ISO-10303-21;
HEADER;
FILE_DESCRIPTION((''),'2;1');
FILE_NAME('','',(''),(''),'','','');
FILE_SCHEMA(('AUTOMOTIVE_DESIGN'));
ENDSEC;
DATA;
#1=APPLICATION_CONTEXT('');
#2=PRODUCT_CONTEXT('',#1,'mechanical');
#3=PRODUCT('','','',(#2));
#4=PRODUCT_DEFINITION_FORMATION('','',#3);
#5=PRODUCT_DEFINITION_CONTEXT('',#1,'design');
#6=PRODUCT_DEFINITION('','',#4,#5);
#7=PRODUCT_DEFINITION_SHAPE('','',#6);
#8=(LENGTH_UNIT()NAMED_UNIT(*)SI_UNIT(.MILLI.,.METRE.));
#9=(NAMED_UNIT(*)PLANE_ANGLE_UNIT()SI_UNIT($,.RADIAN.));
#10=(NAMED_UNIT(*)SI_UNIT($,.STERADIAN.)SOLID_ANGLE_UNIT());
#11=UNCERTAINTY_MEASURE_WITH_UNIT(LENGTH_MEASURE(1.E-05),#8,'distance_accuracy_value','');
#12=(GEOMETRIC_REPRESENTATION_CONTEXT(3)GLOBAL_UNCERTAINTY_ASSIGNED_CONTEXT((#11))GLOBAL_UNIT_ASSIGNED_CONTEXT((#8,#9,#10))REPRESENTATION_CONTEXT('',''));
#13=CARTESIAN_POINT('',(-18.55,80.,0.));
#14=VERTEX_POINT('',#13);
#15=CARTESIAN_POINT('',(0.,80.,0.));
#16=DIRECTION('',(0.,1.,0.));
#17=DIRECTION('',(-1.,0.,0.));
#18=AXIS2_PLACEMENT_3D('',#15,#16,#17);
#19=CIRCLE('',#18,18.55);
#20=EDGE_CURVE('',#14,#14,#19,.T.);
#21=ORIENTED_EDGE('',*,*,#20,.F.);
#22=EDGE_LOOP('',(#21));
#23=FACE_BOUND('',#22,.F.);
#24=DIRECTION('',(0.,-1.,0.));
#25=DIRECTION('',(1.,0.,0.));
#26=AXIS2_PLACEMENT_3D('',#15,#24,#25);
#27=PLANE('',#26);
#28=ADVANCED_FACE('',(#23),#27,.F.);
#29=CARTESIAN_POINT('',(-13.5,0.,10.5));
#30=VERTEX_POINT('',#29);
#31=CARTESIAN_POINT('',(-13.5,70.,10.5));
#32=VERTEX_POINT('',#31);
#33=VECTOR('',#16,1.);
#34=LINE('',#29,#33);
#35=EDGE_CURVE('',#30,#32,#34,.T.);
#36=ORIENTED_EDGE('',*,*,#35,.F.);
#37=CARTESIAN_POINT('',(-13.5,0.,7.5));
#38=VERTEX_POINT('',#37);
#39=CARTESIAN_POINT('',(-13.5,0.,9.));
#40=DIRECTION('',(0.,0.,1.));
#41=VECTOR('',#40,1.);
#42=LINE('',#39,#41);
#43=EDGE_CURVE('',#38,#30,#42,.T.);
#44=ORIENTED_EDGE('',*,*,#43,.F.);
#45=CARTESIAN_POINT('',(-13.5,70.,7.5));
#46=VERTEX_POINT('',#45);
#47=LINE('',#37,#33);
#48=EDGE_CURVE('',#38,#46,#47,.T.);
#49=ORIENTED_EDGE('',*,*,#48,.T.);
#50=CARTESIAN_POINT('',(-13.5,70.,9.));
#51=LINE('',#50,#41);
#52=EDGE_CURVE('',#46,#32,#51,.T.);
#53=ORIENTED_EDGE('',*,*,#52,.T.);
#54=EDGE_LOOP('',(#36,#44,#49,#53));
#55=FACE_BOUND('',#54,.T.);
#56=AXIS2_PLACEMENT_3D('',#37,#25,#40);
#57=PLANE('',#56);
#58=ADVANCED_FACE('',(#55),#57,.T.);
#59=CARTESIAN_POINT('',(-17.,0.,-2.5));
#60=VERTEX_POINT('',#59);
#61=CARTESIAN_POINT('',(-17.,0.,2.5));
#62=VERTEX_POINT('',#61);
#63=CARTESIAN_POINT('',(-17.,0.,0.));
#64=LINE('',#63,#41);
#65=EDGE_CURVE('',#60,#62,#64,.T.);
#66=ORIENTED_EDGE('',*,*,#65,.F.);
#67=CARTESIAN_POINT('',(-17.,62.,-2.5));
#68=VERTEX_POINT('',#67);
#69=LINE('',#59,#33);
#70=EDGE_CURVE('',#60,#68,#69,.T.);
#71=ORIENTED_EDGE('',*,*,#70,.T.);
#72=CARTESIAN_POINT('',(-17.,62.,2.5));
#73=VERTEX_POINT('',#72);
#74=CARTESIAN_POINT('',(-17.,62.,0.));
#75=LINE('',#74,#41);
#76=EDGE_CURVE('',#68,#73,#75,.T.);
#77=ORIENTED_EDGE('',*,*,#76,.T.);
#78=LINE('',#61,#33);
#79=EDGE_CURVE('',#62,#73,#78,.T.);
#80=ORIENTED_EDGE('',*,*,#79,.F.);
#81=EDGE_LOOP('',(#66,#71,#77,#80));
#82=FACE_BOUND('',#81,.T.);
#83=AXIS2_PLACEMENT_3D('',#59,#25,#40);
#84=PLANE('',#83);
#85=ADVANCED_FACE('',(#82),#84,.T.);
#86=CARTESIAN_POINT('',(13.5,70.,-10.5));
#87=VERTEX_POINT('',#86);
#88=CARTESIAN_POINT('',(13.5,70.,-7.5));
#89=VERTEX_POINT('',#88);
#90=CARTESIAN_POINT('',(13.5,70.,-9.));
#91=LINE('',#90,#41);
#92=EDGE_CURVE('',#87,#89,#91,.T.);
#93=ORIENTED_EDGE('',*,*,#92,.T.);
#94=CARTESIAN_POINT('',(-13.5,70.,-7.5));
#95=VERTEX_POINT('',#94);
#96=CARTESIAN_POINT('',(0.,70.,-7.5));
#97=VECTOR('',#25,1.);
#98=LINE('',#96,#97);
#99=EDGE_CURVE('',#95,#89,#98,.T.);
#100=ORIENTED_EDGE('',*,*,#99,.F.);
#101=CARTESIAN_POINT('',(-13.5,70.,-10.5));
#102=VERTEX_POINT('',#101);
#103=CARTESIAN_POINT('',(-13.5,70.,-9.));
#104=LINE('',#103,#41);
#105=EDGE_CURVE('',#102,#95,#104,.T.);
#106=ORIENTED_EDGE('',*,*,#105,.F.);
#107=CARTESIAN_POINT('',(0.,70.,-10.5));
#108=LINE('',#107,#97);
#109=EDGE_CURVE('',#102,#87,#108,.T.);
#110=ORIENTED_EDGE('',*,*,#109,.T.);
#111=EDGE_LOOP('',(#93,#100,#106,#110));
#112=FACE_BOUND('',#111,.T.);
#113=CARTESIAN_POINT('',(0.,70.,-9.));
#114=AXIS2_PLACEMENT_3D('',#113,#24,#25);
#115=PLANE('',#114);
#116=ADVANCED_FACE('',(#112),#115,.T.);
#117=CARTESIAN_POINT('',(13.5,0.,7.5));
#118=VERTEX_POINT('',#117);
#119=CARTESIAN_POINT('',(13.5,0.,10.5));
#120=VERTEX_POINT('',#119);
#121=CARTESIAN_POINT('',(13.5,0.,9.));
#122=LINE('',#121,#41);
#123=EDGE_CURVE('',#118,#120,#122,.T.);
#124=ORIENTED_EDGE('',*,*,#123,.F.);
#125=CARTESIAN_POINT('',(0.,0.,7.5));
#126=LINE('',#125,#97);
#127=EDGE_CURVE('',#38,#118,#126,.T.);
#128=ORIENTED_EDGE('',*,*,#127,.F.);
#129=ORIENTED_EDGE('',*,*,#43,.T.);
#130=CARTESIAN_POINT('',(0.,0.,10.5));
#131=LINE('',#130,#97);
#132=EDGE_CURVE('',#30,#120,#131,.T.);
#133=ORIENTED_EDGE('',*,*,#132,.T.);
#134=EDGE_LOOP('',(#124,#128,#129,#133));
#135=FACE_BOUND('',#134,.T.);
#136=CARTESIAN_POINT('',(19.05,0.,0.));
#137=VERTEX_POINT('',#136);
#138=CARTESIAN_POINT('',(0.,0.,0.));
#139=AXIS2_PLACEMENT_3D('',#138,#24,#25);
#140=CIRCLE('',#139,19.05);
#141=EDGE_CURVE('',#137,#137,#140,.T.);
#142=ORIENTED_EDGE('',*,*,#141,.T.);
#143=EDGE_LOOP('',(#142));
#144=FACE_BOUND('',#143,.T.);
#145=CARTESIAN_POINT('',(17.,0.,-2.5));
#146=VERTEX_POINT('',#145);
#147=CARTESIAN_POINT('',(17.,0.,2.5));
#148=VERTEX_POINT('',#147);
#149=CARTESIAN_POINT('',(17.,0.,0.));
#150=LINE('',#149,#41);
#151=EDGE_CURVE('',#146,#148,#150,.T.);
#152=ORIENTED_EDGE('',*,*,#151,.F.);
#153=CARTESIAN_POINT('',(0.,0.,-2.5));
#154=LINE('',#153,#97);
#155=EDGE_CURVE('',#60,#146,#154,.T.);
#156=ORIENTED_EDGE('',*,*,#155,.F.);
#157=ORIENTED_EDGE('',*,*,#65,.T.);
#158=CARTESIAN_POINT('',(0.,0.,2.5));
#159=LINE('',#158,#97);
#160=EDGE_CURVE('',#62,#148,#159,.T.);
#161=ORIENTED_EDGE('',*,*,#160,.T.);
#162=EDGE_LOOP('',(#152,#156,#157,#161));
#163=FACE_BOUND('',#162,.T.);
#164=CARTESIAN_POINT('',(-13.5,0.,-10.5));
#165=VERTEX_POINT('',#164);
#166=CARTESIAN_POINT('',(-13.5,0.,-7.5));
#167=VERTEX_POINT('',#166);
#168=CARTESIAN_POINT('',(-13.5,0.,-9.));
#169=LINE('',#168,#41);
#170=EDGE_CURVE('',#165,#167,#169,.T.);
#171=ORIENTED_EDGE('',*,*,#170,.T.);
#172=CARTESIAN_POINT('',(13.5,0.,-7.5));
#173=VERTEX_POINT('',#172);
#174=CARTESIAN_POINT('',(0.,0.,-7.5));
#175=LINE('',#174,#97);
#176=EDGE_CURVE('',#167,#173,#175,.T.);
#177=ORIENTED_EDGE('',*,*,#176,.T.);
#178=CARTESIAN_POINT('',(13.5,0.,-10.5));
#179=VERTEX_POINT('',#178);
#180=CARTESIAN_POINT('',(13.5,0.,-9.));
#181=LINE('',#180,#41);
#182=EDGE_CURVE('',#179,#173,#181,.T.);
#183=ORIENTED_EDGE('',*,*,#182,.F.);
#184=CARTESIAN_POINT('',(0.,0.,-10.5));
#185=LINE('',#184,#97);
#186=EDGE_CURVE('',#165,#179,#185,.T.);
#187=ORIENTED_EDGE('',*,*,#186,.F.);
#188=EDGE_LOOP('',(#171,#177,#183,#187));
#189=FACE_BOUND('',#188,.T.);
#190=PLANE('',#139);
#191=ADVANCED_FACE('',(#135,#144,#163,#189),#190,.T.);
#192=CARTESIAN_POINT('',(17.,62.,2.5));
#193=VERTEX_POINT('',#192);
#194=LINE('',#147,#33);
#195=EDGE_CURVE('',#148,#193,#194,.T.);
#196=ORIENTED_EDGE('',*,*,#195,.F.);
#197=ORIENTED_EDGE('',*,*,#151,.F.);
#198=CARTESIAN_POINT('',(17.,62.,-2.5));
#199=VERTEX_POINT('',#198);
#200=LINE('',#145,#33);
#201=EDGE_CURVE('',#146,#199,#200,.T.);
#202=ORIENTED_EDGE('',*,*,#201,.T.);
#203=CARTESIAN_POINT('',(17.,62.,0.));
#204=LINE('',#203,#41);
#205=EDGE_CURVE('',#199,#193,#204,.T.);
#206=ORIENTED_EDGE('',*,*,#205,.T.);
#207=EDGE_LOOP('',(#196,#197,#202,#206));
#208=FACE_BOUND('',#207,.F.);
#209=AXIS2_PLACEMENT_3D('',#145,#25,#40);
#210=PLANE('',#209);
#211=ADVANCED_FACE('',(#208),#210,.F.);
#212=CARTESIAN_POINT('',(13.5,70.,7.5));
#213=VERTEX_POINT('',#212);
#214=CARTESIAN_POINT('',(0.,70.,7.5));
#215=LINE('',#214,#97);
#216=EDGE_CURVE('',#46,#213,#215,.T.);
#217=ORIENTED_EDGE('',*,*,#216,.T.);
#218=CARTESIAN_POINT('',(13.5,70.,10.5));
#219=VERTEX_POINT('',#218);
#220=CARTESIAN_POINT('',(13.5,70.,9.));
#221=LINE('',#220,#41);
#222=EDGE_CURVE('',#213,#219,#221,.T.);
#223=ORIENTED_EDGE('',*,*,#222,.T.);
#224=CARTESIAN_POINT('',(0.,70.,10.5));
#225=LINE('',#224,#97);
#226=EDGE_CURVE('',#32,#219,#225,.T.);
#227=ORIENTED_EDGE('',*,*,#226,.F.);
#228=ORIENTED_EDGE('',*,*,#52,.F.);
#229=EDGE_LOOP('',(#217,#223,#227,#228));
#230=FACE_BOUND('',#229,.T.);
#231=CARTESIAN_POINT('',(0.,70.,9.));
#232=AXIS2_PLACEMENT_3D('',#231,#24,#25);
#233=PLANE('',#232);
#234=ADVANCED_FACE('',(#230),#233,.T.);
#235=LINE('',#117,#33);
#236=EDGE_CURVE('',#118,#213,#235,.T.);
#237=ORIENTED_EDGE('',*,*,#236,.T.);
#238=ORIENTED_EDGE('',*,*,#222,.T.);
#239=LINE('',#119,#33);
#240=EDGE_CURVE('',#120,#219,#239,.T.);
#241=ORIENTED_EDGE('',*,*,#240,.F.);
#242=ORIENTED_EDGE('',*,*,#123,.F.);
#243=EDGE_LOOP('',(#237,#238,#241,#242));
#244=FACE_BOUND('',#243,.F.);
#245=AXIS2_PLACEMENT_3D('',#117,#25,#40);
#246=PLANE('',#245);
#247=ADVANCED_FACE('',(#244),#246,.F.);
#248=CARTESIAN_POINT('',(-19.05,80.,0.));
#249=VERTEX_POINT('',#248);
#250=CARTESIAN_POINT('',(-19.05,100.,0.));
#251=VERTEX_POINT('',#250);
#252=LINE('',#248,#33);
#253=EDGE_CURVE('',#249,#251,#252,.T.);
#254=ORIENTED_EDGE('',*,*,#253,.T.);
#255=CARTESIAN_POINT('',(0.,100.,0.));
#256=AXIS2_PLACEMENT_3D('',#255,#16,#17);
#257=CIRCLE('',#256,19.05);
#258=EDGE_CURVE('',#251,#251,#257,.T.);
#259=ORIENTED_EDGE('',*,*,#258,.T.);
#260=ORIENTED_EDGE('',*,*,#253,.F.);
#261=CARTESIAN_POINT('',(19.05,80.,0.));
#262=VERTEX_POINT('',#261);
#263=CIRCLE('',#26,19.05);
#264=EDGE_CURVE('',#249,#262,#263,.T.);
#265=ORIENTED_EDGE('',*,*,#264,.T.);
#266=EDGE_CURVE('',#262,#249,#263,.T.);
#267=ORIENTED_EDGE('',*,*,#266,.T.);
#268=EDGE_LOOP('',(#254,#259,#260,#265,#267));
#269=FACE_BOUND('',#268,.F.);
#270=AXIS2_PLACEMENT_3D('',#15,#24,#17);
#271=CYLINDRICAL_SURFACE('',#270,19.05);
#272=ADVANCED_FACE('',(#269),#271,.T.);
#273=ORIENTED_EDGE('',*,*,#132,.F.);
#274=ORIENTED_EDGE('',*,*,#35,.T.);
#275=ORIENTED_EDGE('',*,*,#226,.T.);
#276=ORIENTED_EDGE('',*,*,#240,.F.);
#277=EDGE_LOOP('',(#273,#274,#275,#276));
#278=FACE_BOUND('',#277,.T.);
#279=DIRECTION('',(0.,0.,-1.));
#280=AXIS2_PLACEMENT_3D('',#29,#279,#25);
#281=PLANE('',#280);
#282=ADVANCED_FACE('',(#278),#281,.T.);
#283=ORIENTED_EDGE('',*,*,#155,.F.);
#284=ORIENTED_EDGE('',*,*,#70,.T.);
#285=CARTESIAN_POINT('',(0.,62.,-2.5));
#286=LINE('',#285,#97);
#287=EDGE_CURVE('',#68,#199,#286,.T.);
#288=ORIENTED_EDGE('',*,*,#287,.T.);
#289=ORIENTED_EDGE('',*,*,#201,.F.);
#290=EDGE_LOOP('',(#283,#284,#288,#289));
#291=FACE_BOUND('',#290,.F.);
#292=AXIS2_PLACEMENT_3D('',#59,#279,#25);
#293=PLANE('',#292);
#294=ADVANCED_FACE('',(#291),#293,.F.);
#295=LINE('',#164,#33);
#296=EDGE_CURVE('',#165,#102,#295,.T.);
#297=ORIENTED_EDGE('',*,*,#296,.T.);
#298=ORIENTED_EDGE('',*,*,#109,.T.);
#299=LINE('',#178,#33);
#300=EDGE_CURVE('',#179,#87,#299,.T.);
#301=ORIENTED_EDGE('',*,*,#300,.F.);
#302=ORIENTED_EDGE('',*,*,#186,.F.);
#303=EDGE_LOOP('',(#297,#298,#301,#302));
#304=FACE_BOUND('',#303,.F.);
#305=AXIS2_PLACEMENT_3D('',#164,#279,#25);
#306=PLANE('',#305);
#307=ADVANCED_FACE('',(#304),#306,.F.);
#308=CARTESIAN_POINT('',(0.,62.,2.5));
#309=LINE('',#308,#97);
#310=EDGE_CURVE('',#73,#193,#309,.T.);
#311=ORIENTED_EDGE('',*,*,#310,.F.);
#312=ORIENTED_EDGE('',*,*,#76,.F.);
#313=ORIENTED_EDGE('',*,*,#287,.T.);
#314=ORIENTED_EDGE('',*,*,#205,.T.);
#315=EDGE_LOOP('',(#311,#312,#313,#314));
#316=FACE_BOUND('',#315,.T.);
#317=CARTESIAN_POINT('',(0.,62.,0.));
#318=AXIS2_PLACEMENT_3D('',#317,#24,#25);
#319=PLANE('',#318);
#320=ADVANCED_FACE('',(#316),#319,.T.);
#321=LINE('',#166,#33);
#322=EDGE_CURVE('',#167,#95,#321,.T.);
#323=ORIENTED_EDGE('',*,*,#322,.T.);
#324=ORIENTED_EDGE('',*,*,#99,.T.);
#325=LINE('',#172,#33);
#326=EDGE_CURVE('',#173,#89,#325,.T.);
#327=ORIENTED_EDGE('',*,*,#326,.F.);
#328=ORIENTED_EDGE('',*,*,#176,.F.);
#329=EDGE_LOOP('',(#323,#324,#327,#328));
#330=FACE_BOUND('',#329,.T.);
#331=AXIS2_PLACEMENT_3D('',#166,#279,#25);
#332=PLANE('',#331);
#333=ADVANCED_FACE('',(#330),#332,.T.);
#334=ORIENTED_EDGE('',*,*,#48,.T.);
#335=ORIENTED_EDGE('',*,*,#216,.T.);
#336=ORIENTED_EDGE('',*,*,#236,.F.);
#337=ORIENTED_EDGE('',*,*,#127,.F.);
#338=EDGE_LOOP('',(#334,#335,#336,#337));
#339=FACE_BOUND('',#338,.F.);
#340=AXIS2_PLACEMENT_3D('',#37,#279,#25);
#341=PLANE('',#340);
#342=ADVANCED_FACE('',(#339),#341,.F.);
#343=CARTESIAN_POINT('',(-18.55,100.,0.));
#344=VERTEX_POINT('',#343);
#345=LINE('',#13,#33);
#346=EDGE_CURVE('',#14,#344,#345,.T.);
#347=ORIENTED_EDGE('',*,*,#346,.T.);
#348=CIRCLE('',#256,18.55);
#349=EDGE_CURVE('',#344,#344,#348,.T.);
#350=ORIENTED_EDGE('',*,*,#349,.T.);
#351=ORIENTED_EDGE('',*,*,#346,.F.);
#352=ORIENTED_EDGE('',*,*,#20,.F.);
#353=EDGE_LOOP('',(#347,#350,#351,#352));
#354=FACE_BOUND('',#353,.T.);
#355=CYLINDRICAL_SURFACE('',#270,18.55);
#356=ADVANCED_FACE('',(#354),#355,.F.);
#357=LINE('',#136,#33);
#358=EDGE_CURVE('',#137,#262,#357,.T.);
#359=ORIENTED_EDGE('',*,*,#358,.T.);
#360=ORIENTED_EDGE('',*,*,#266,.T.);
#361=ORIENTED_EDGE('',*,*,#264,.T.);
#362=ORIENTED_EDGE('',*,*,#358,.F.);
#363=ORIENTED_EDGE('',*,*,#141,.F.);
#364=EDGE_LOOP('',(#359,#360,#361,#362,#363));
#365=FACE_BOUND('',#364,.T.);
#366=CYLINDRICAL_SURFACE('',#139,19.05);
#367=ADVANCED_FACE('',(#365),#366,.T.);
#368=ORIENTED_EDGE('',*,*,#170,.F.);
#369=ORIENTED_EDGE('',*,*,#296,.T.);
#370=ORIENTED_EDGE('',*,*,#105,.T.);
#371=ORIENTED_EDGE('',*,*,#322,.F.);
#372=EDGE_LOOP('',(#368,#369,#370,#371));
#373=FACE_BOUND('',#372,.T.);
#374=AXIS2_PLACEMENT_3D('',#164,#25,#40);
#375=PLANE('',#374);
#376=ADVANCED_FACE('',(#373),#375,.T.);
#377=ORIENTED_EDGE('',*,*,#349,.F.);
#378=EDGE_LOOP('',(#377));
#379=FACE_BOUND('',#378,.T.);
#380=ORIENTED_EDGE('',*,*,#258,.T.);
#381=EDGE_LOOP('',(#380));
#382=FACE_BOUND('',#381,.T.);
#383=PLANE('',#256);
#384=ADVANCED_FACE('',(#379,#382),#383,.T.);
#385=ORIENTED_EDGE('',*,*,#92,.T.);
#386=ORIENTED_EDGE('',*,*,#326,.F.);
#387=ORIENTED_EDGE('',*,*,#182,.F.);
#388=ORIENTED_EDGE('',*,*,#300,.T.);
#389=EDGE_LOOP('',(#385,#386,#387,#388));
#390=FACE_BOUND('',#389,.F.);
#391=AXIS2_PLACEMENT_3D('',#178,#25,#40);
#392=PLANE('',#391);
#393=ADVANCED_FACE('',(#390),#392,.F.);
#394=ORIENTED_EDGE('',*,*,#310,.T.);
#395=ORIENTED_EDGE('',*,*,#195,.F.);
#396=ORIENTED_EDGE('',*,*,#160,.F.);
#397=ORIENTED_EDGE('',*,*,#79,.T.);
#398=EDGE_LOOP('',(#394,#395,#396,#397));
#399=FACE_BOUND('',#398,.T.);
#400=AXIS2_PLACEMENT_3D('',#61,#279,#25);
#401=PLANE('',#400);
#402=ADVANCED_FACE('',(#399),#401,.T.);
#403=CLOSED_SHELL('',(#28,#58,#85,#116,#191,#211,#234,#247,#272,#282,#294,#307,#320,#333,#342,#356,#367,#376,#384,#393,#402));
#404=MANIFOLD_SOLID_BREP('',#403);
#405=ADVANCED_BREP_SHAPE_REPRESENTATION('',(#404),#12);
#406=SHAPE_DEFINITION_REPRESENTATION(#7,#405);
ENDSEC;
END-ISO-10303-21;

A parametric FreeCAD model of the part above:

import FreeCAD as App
import Part
import Sketcher
from FreeCAD import Vector


def add_polygon(sketch, points):
    """Adds a closed chain of lines whose ends are joined by coincident constraints."""
    first, n = sketch.GeometryCount, len(points)
    for a, b in zip(points, points[1:] + points[:1]):
        sketch.addGeometry(Part.LineSegment(App.Vector(*a, 0), App.Vector(*b, 0)), False)
    for i in range(n):
        sketch.addConstraint(Sketcher.Constraint("Coincident", first + i, 2, first + (i + 1) % n, 1))

doc = App.newDocument("Part")
body = doc.addObject("PartDesign::Body", "Body")

# Sketch on XZ plane
sketch1 = doc.addObject("Sketcher::SketchObject", "Sketch")
body.addObject(sketch1)
sketch1.AttachmentSupport = (doc.XZ_Plane, [""])
sketch1.MapMode = "FlatFace"
sketch1.addGeometry(Part.Circle(Vector(0, 0, 0), Vector(0, 0, 1), 19), False)
sketch1.addConstraint([
    Sketcher.Constraint("Coincident", 0, 3, -1, 1),
    Sketcher.Constraint("Diameter", 0, 38.1),
])
pad1 = doc.addObject("PartDesign::Pad", "Pad")
body.addObject(pad1)
pad1.Profile = sketch1
pad1.Length = 80
pad1.Reversed = True

# Sketch on XZ plane
sketch2 = doc.addObject("Sketcher::SketchObject", "Sketch001")
body.addObject(sketch2)
sketch2.AttachmentSupport = (doc.XZ_Plane, [""])
sketch2.MapMode = "FlatFace"
sketch2.AttachmentOffset = App.Placement(Vector(0, 0, -80), App.Rotation())
sketch2.addGeometry([
    Part.Circle(Vector(0, 0, 0), Vector(0, 0, 1), 19),
    Part.Circle(Vector(0, 0, 0), Vector(0, 0, 1), 19),
], False)
sketch2.addConstraint([
    Sketcher.Constraint("Coincident", 0, 3, -1, 1),
    Sketcher.Constraint("Coincident", 1, 3, -1, 1),
    Sketcher.Constraint("Diameter", 0, 38.1),
    Sketcher.Constraint("Diameter", 1, 37.1),
])
pad2 = doc.addObject("PartDesign::Pad", "Pad001")
body.addObject(pad2)
pad2.Profile = sketch2
pad2.Length = 20
pad2.Reversed = True

# Sketch on XZ plane
sketch3 = doc.addObject("Sketcher::SketchObject", "Sketch002")
body.addObject(sketch3)
sketch3.AttachmentSupport = (doc.XZ_Plane, [""])
sketch3.MapMode = "FlatFace"
add_polygon(sketch3, [(-13.5, 10.5), (-13.5, 7.5), (13.5, 7.5), (13.5, 10.5)])  # lines 0-3
add_polygon(sketch3, [(-13.5, -7.5), (-13.5, -10.5), (13.5, -10.5), (13.5, -7.5)])  # lines 4-7
sketch3.addConstraint([
    Sketcher.Constraint("Vertical", 0),
    Sketcher.Constraint("Horizontal", 1),
    Sketcher.Constraint("Vertical", 2),
    Sketcher.Constraint("Horizontal", 3),
    Sketcher.Constraint("Vertical", 4),
    Sketcher.Constraint("Horizontal", 5),
    Sketcher.Constraint("Vertical", 6),
    Sketcher.Constraint("Horizontal", 7),
    Sketcher.Constraint("Symmetric", 2, 2, 4, 2, -1, 1),
    Sketcher.Constraint("Symmetric", 0, 2, 6, 2, -1, 1),
    Sketcher.Constraint("Vertical", 3, 2, 4, 2),
    Sketcher.Constraint("DistanceX", 1, 1, 1, 2, 27.0),
    Sketcher.Constraint("DistanceY", 0, 2, 0, 1, 3.0),
    Sketcher.Constraint("DistanceY", 4, 2, 0, 2, 18.0),
])
pocket1 = doc.addObject("PartDesign::Pocket", "Pocket")
body.addObject(pocket1)
pocket1.Profile = sketch3
pocket1.Length = 70

# Sketch on XZ plane
sketch4 = doc.addObject("Sketcher::SketchObject", "Sketch003")
body.addObject(sketch4)
sketch4.AttachmentSupport = (doc.XZ_Plane, [""])
sketch4.MapMode = "FlatFace"
add_polygon(sketch4, [(-17, 2), (-17, -2), (17, -2), (17, 2)])  # lines 0-3
sketch4.addConstraint([
    Sketcher.Constraint("Vertical", 0),
    Sketcher.Constraint("Horizontal", 1),
    Sketcher.Constraint("Vertical", 2),
    Sketcher.Constraint("Horizontal", 3),
    Sketcher.Constraint("Symmetric", 0, 2, 2, 2, -1, 1),
    Sketcher.Constraint("DistanceX", 1, 1, 1, 2, 34.0),
    Sketcher.Constraint("DistanceY", 0, 2, 0, 1, 5.0),
])
pocket2 = doc.addObject("PartDesign::Pocket", "Pocket001")
body.addObject(pocket2)
pocket2.Profile = sketch4
pocket2.Length = 62

doc.recompute()
